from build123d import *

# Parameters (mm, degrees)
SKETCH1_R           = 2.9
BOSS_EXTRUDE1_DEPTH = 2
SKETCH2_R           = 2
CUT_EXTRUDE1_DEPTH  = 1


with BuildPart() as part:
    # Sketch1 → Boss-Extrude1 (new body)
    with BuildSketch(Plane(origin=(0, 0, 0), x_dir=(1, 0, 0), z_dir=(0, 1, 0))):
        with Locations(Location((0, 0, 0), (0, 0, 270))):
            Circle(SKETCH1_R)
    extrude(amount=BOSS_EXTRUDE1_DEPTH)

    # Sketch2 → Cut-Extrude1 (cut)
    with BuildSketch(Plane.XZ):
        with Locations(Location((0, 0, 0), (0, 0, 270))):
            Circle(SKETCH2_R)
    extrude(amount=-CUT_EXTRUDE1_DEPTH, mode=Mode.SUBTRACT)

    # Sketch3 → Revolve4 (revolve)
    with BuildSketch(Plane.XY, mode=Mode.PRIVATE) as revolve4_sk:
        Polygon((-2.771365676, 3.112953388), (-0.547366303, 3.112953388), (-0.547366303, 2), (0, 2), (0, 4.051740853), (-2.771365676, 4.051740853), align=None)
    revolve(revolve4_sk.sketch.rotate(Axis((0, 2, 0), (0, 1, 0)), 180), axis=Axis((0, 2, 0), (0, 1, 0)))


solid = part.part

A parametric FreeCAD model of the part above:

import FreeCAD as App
import Part
import Sketcher
from FreeCAD import Vector

doc = App.newDocument("Part")
body = doc.addObject("PartDesign::Body", "Body")

# Sketch on XZ plane
sketch1 = body.newObject("Sketcher::SketchObject", "Sketch")
sketch1.AttachmentSupport = (doc.getObject("XZ_Plane"), [""])
sketch1.MapMode = "FlatFace"
sketch1.addGeometry(Part.Circle(Vector(0, 0, 0), Vector(0, 0, 1), 2.9), False)
sketch1.addConstraint([
    Sketcher.Constraint("Coincident", 0, 3, -1, 1),
    Sketcher.Constraint("Diameter", 0, 5.8),
])
pad1 = body.newObject("PartDesign::Pad", "Pad")
pad1.Profile = sketch1
pad1.Length = 2
pad1.Reversed = True

# Sketch on XZ plane
sketch2 = body.newObject("Sketcher::SketchObject", "Sketch001")
sketch2.AttachmentSupport = (doc.getObject("XZ_Plane"), [""])
sketch2.MapMode = "FlatFace"
sketch2.addGeometry(Part.Circle(Vector(0, 0, 0), Vector(0, 0, 1), 2), False)
sketch2.addConstraint([
    Sketcher.Constraint("Coincident", 0, 3, -1, 1),
    Sketcher.Constraint("Diameter", 0, 4.0),
])
pocket1 = body.newObject("PartDesign::Pocket", "Pocket")
pocket1.Profile = sketch2
pocket1.Length = 1

# Sketch on XY plane
sketch3 = body.newObject("Sketcher::SketchObject", "Sketch002")
sketch3.AttachmentSupport = (doc.getObject("XY_Plane"), [""])
sketch3.MapMode = "FlatFace"
sketch3.addGeometry([
    Part.LineSegment(Vector(-2.8, 3.1, 0), Vector(-0.5, 3.1, 0)),  # 0
    Part.LineSegment(Vector(-0.5, 3.1, 0), Vector(-0.5, 2, 0)),  # 1
    Part.LineSegment(Vector(-0.5, 2, 0), Vector(0, 2, 0)),  # 2
    Part.LineSegment(Vector(0, 2, 0), Vector(0, 4.1, 0)),  # 3
    Part.LineSegment(Vector(0, 4.1, 0), Vector(-2.8, 4.1, 0)),  # 4
    Part.LineSegment(Vector(-2.8, 4.1, 0), Vector(-2.8, 3.1, 0)),  # 5
], False)
sketch3.addConstraint([
    Sketcher.Constraint("Coincident", 0, 2, 1, 1),
    Sketcher.Constraint("Coincident", 1, 2, 2, 1),
    Sketcher.Constraint("Coincident", 2, 2, 3, 1),
    Sketcher.Constraint("Coincident", 3, 2, 4, 1),
    Sketcher.Constraint("Coincident", 4, 2, 5, 1),
    Sketcher.Constraint("Coincident", 5, 2, 0, 1),
    Sketcher.Constraint("Horizontal", 0),
    Sketcher.Constraint("Vertical", 1),
    Sketcher.Constraint("Horizontal", 2),
    Sketcher.Constraint("Vertical", 3),
    Sketcher.Constraint("Horizontal", 4),
    Sketcher.Constraint("Vertical", 5),
    Sketcher.Constraint("PointOnObject", 2, 2, -2),
    Sketcher.Constraint("DistanceY", -1, 1, 1, 2, 2.0),
    Sketcher.Constraint("DistanceX", 0, 1, 0, 2, 2.223999),
    Sketcher.Constraint("DistanceY", 3, 1, 3, 2, 2.051741),
    Sketcher.Constraint("DistanceX", 2, 1, 2, 2, 0.547366),
    Sketcher.Constraint("DistanceY", 1, 2, 1, 1, 1.112953),
])
revolution = body.newObject("PartDesign::Revolution", "Revolution")
revolution.Profile = sketch3
revolution.ReferenceAxis = (sketch3, ["V_Axis"])
revolution.Angle = 360

doc.recompute()
